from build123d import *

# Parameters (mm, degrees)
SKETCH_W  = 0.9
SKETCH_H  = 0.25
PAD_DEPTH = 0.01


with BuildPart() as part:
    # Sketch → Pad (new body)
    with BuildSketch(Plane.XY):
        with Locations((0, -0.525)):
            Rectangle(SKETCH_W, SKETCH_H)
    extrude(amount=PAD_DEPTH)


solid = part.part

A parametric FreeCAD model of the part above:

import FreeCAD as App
import Part
import Sketcher

V = App.Vector

doc = App.newDocument("Part")
body = doc.addObject("PartDesign::Body", "Body")

sketch1 = body.newObject("Sketcher::SketchObject", "Sketch")
sketch1.AttachmentSupport = (doc.getObject("XY_Plane"), [""])
sketch1.MapMode = "FlatFace"
sketch1.addGeometry([
    Part.LineSegment(V(-0.45, -0.4, 0), V(-0.45, -0.65, 0)),
    Part.LineSegment(V(-0.45, -0.65, 0), V(0.45, -0.65, 0)),
    Part.LineSegment(V(0.45, -0.65, 0), V(0.45, -0.4, 0)),
    Part.LineSegment(V(0.45, -0.4, 0), V(-0.45, -0.4, 0)),
], False)
sketch1.addConstraint([
    Sketcher.Constraint("Coincident", 0, 2, 1, 1),
    Sketcher.Constraint("Coincident", 1, 2, 2, 1),
    Sketcher.Constraint("Coincident", 2, 2, 3, 1),
    Sketcher.Constraint("Coincident", 3, 2, 0, 1),
    Sketcher.Constraint("Vertical", 0),
    Sketcher.Constraint("Horizontal", 1),
    Sketcher.Constraint("Vertical", 2),
    Sketcher.Constraint("Horizontal", 3),
    Sketcher.Constraint("DistanceX", 1, 1, 1, 2, 0.9),
    Sketcher.Constraint("DistanceY", 0, 2, 0, 1, 0.25),
    Sketcher.Constraint("DistanceY", 2, 2, -1, 1, 0.4),
    Sketcher.Constraint("DistanceX", 0, 2, -1, 1, 0.45),
])
pad1 = body.newObject("PartDesign::Pad", "Pad")
pad1.Profile = sketch1
pad1.Length = 0.01

doc.recompute()
